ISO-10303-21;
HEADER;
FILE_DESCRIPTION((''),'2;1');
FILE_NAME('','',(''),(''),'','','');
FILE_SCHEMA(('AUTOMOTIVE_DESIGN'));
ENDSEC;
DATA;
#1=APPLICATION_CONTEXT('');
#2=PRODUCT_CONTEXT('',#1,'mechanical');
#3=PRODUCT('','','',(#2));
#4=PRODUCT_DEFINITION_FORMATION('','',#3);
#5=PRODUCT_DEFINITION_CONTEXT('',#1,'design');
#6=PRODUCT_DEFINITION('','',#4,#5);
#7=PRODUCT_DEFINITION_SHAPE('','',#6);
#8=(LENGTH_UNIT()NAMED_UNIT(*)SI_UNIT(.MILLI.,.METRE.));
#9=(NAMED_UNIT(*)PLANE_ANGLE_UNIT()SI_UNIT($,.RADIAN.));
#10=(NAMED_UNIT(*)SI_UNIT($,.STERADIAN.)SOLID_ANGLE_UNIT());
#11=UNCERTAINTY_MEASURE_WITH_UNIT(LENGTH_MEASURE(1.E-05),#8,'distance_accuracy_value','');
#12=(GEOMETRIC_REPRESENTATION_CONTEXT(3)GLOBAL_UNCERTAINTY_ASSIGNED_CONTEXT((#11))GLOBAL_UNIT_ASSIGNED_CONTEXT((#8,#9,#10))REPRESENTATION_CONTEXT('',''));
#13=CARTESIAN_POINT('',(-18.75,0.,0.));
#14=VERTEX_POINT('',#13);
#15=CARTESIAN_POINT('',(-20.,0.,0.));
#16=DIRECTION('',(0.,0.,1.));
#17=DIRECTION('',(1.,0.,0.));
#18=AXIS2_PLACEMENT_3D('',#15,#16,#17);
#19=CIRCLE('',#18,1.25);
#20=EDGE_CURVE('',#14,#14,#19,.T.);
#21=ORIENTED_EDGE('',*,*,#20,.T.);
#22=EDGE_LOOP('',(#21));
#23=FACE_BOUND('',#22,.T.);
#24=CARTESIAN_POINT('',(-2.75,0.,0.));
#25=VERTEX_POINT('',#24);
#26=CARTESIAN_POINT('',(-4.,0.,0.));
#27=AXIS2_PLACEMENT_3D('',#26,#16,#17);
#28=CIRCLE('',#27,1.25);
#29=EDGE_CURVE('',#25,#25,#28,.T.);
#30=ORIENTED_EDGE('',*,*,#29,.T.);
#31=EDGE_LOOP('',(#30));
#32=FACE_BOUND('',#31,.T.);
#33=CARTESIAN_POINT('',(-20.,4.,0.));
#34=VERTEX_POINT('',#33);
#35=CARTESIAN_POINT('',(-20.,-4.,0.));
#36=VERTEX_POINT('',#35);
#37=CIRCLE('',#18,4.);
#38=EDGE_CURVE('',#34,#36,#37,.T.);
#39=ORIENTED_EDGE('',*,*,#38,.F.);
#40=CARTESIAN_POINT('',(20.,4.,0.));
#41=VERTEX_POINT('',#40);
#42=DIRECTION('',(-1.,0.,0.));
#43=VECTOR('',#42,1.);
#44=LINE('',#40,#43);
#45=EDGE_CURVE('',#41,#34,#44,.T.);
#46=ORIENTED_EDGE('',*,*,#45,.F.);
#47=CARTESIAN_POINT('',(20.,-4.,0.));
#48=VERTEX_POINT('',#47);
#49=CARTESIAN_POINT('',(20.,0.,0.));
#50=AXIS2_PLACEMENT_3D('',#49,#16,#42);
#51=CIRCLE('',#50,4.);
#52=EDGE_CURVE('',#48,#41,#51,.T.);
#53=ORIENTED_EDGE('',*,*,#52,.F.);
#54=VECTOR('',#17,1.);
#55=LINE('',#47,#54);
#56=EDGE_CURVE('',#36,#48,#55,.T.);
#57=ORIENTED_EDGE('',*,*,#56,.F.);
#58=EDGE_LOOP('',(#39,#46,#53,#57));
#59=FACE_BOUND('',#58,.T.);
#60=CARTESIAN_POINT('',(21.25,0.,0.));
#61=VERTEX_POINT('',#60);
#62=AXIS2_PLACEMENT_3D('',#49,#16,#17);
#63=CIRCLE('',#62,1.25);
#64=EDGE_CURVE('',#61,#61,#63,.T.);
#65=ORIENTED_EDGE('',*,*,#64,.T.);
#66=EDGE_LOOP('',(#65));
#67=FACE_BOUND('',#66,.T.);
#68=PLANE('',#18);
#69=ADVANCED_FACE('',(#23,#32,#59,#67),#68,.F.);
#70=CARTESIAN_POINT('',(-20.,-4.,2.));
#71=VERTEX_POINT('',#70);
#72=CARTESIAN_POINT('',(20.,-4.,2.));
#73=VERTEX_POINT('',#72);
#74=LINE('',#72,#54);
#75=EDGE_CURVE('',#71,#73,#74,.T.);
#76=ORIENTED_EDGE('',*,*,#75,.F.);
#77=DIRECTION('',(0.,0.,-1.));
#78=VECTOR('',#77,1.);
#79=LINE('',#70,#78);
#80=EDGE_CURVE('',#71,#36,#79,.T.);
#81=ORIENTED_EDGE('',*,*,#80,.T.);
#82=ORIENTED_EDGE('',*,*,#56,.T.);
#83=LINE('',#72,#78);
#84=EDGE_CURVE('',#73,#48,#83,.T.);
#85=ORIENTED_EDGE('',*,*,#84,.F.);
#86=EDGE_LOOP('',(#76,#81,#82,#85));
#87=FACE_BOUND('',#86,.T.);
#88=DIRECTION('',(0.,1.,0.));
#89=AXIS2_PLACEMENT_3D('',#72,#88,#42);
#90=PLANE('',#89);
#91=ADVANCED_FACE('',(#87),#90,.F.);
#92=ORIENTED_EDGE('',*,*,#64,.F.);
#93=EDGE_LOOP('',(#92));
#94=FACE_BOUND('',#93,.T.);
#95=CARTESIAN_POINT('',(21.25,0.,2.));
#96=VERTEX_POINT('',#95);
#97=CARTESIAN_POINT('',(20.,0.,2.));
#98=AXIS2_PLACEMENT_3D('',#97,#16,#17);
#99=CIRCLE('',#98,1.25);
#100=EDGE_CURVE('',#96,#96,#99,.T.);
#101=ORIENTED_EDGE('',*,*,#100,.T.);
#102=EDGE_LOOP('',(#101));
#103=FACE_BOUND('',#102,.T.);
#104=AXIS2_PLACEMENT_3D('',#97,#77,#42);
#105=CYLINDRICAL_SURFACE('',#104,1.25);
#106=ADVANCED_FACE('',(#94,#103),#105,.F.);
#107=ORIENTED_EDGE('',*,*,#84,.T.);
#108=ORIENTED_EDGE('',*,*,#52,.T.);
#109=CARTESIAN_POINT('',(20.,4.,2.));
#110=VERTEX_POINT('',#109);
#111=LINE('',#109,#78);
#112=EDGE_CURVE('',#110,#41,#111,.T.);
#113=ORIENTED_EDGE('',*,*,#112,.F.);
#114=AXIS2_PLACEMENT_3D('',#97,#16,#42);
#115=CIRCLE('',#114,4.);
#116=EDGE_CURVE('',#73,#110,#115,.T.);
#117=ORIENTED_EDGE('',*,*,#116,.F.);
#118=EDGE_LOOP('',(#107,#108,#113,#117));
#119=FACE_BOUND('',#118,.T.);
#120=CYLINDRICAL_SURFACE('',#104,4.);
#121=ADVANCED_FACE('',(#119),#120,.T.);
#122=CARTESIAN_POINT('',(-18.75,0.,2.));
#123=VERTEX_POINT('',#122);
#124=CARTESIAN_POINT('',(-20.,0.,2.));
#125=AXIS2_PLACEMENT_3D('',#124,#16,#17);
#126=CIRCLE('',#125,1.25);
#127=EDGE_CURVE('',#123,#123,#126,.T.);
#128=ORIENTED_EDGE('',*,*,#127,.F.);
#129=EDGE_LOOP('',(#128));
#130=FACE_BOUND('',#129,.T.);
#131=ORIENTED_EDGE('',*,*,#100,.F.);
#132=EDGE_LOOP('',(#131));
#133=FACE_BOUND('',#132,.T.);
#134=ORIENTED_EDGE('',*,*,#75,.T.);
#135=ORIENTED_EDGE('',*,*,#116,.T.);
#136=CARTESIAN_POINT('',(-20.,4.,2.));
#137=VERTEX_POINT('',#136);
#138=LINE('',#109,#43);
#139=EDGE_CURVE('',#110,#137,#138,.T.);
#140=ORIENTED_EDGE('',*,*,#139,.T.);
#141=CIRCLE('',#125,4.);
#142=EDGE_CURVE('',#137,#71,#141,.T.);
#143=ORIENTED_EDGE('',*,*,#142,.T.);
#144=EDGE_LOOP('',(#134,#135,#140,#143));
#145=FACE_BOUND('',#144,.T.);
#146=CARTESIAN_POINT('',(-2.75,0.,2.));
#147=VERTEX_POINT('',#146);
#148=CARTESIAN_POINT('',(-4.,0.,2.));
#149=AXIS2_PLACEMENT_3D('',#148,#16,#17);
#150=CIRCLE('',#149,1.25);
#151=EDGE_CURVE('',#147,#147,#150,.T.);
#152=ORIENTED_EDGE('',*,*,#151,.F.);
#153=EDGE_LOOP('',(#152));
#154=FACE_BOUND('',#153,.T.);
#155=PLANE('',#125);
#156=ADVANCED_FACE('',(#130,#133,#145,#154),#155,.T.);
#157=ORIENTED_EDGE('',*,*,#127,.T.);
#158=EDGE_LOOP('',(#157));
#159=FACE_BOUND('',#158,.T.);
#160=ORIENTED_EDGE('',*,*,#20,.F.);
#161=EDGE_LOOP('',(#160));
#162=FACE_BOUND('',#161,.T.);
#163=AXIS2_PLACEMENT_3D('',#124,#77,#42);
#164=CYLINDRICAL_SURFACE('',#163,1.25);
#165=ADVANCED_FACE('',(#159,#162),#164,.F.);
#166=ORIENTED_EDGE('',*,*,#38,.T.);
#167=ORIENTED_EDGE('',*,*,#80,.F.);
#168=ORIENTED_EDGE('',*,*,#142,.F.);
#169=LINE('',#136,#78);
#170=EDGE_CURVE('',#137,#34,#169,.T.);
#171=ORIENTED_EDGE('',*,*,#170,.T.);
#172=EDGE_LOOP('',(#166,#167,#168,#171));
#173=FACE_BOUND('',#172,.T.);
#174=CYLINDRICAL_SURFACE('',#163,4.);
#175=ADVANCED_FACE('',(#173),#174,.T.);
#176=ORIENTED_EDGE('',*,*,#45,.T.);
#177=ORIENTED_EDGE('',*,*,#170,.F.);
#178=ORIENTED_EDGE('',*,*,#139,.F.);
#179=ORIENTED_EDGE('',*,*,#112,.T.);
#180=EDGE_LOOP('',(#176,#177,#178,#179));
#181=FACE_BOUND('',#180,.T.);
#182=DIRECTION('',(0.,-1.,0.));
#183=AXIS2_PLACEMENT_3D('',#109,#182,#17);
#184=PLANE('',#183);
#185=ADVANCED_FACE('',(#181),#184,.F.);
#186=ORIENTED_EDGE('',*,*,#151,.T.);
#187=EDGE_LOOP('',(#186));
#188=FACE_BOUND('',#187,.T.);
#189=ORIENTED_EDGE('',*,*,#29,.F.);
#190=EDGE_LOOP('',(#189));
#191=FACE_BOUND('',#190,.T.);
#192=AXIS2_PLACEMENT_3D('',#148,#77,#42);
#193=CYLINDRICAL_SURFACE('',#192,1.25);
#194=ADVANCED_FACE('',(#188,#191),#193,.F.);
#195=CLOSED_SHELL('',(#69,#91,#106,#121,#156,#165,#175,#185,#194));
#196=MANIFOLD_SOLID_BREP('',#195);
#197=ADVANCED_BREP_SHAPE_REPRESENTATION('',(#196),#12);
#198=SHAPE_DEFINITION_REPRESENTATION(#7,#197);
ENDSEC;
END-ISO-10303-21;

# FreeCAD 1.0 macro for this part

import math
import FreeCAD as App
import Part
import Sketcher
Q = App.Units.Quantity

doc = App.newDocument("Part")
body = doc.addObject("PartDesign::Body", "Body")

# Sketch on XY plane
sketch1 = body.newObject("Sketcher::SketchObject", "Sketch")
sketch1.AttachmentSupport = (doc.getObject("XY_Plane"), [""])
sketch1.MapMode = "FlatFace"
sketch1.addGeometry([
    Part.LineSegment(App.Vector(-20, -4, 0), App.Vector(20, -4, 0)),  # 0
    Part.ArcOfCircle(Part.Circle(App.Vector(20, 0, 0), App.Vector(0, 0, 1), 4), math.radians(-90), math.radians(90)),  # 1
    Part.LineSegment(App.Vector(20, 4, 0), App.Vector(-20, 4, 0)),  # 2
    Part.ArcOfCircle(Part.Circle(App.Vector(-20, 0, 0), App.Vector(0, 0, 1), 4), math.radians(90), math.radians(270)),  # 3
    Part.Circle(App.Vector(20, 0, 0), App.Vector(0, 0, 1), 1.2),  # 4
    Part.Circle(App.Vector(-4, 0, 0), App.Vector(0, 0, 1), 1.2),  # 5
    Part.Circle(App.Vector(-20, 0, 0), App.Vector(0, 0, 1), 1.2),  # 6
], False)
sketch1.addConstraint([
    Sketcher.Constraint("Tangent", 0, 2, 1, 1),
    Sketcher.Constraint("Tangent", 1, 2, 2, 1),
    Sketcher.Constraint("Tangent", 2, 2, 3, 1),
    Sketcher.Constraint("Tangent", 3, 2, 0, 1),
    Sketcher.Constraint("Horizontal", 0),
    Sketcher.Constraint("Horizontal", 2),
    Sketcher.Constraint("Coincident", 4, 3, 1, 3),
    Sketcher.Constraint("Coincident", 6, 3, 3, 3),
    Sketcher.Constraint("Equal", 4, 5),
    Sketcher.Constraint("Equal", 5, 6),
    Sketcher.Constraint("Symmetric", 1, 3, 3, 3, -1, 1),
    Sketcher.Constraint("PointOnObject", 5, 3, -1),
    Sketcher.Constraint("Radius", 1, Q("4 mm")),
    Sketcher.Constraint("Diameter", 4, Q("2.5 mm")),
    Sketcher.Constraint("DistanceX", 0, 1, 0, 2, Q("40 mm")),
    Sketcher.Constraint("DistanceX", 5, 3, -1, 1, Q("4 mm")),
])
pad1 = body.newObject("PartDesign::Pad", "Pad")
pad1.Profile = sketch1
pad1.Length = 2

doc.recompute()
